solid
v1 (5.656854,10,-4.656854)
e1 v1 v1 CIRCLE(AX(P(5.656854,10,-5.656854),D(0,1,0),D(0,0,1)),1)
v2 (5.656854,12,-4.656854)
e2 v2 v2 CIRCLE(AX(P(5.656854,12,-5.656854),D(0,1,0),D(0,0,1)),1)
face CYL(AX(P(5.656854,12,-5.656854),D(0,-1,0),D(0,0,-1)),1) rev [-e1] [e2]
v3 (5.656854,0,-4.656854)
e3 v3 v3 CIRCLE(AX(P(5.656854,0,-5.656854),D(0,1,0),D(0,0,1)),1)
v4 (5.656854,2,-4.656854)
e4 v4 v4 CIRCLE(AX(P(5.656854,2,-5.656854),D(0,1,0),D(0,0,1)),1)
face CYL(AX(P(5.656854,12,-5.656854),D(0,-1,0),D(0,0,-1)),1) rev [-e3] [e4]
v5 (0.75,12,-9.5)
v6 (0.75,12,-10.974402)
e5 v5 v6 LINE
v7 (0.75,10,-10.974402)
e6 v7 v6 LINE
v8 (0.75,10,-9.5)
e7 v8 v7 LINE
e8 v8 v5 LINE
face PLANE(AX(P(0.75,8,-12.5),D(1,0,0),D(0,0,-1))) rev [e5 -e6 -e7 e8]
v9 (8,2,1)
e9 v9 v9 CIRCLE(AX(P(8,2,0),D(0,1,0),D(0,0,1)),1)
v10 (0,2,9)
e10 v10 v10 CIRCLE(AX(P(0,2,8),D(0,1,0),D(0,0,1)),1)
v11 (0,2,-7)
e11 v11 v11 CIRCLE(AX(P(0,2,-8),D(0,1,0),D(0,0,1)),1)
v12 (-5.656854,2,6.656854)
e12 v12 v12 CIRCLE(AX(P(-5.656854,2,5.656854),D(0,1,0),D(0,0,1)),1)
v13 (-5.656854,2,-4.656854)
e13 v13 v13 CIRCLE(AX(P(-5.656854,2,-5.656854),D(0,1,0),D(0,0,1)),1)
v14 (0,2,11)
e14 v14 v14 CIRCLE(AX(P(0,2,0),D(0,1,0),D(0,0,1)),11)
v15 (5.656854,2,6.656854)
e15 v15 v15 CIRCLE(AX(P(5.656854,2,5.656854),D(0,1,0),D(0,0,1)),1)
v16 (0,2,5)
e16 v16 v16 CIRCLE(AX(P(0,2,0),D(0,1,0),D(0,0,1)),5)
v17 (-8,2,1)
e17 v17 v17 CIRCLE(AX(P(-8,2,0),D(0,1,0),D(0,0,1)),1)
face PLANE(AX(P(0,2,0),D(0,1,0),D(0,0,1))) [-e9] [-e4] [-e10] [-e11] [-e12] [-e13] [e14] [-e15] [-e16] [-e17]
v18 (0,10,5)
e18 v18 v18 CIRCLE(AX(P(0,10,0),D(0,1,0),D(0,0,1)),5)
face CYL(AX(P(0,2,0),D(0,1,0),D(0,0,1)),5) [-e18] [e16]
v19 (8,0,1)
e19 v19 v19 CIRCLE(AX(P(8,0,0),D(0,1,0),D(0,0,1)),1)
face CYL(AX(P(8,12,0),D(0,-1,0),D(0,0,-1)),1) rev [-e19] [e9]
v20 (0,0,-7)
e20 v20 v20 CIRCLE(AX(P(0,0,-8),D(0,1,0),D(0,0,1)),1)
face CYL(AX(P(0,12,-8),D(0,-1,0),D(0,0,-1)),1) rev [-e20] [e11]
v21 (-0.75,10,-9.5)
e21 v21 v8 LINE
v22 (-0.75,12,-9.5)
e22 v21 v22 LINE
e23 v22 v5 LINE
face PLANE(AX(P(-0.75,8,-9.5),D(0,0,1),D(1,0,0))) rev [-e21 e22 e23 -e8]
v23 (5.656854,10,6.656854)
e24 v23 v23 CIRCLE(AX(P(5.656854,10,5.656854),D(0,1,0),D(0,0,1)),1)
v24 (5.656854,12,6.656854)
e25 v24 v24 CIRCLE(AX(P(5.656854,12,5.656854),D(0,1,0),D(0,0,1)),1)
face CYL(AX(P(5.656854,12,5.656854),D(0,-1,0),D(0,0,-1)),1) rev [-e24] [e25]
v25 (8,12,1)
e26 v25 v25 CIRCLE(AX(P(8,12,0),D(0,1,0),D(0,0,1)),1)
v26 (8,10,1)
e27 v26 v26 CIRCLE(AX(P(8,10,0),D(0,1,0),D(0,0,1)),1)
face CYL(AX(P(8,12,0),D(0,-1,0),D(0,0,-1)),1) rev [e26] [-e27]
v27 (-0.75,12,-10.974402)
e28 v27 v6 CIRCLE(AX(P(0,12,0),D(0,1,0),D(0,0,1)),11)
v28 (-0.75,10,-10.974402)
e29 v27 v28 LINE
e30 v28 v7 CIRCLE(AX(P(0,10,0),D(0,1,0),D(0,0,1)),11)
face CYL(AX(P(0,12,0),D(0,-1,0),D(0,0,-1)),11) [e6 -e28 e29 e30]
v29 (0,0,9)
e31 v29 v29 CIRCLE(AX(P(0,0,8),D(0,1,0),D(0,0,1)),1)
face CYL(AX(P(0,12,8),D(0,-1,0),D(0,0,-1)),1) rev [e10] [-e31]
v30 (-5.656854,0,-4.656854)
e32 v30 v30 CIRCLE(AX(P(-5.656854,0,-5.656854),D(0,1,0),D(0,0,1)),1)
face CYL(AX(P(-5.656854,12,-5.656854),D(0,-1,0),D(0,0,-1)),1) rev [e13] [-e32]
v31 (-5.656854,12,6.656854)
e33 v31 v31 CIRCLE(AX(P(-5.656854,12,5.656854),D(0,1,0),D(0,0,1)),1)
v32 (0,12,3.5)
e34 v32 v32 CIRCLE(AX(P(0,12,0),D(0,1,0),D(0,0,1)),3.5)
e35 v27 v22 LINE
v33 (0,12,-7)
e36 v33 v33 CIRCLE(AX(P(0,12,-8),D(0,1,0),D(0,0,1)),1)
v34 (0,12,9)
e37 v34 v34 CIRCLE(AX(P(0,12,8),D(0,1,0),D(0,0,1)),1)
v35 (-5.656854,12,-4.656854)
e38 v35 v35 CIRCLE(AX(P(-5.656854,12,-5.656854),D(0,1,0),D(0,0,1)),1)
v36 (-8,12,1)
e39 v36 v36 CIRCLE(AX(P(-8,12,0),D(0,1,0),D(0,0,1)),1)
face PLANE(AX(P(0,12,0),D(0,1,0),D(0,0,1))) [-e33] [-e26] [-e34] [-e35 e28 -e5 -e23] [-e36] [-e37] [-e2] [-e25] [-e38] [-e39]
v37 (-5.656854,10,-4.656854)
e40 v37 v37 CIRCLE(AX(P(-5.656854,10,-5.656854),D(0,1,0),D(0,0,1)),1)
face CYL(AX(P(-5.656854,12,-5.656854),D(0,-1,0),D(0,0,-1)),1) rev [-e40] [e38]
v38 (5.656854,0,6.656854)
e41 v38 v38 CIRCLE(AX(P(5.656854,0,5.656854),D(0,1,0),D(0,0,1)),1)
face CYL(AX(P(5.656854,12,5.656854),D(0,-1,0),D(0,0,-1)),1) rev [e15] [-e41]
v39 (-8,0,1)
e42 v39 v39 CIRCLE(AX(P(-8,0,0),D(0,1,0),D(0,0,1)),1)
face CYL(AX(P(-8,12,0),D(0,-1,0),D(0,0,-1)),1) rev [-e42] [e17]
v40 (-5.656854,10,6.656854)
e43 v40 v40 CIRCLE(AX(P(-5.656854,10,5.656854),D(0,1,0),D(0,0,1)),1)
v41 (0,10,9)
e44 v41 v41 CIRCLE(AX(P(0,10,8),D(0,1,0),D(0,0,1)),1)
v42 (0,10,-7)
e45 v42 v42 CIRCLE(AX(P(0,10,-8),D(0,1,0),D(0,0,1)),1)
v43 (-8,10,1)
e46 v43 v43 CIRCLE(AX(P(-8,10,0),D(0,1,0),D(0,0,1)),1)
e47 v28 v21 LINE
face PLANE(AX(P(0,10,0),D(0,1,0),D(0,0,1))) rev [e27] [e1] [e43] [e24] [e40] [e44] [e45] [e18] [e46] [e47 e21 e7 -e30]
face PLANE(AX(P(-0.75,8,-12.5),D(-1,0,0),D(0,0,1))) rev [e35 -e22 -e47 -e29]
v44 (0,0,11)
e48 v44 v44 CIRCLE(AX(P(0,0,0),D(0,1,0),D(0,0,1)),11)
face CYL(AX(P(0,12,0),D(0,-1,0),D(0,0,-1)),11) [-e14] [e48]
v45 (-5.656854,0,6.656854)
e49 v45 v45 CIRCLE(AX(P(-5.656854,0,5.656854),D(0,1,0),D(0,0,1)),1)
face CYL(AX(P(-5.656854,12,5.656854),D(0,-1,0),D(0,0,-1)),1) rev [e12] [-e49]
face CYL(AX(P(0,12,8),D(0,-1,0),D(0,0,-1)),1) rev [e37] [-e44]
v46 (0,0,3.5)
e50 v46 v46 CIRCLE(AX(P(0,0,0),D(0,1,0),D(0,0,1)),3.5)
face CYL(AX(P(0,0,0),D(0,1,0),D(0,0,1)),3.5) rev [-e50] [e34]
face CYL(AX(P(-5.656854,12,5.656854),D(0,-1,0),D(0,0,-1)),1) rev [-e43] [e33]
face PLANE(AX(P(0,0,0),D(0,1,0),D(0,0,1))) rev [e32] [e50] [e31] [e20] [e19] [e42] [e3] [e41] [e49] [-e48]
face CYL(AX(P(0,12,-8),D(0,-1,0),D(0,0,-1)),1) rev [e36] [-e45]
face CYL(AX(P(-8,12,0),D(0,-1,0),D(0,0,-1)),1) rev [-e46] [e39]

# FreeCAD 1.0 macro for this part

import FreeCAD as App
import Part
import Sketcher
from FreeCAD import Vector


def add_polygon(sketch, points):
    """Adds a closed chain of lines whose ends are joined by coincident constraints."""
    first, n = sketch.GeometryCount, len(points)
    for a, b in zip(points, points[1:] + points[:1]):
        sketch.addGeometry(Part.LineSegment(App.Vector(*a, 0), App.Vector(*b, 0)), False)
    for i in range(n):
        sketch.addConstraint(Sketcher.Constraint("Coincident", first + i, 2, first + (i + 1) % n, 1))

doc = App.newDocument("Part")
body = doc.addObject("PartDesign::Body", "Body")

sketch1 = body.newObject("Sketcher::SketchObject", "Sketch")
sketch1.AttachmentSupport = (doc.getObject("XZ_Plane"), [""])
sketch1.MapMode = "FlatFace"
sketch1.addGeometry([
    Part.Circle(Vector(0, 0, 0), Vector(0, 0, 1), 11),
    Part.Circle(Vector(-5.7, -5.7, 0), Vector(0, 0, 1), 1),
    Part.Circle(Vector(0, -8, 0), Vector(0, 0, 1), 1),
    Part.Circle(Vector(-8, 0, 0), Vector(0, 0, 1), 1),
    Part.Circle(Vector(-5.7, 5.7, 0), Vector(0, 0, 1), 1),
    Part.Circle(Vector(5.7, -5.7, 0), Vector(0, 0, 1), 1),
    Part.Circle(Vector(8, 0, 0), Vector(0, 0, 1), 1),
    Part.Circle(Vector(0, 8, 0), Vector(0, 0, 1), 1),
    Part.Circle(Vector(5.7, 5.7, 0), Vector(0, 0, 1), 1),
], False)
sketch1.addConstraint([
    Sketcher.Constraint("Coincident", 0, 3, -1, 1),
    Sketcher.Constraint("Equal", 1, 2),
    Sketcher.Constraint("Equal", 2, 3),
    Sketcher.Constraint("Equal", 3, 4),
    Sketcher.Constraint("Equal", 4, 5),
    Sketcher.Constraint("Equal", 5, 6),
    Sketcher.Constraint("Equal", 6, 7),
    Sketcher.Constraint("Equal", 7, 8),
    Sketcher.Constraint("Symmetric", 4, 3, 5, 3, -1, 1),
    Sketcher.Constraint("Symmetric", 3, 3, 6, 3, -1, 1),
    Sketcher.Constraint("Symmetric", 2, 3, 7, 3, -1, 1),
    Sketcher.Constraint("Symmetric", 1, 3, 8, 3, -1, 1),
    Sketcher.Constraint("Symmetric", 1, 3, 5, 3, -2),
    Sketcher.Constraint("PointOnObject", 2, 3, -2),
    Sketcher.Constraint("PointOnObject", 3, 3, -1),
    Sketcher.Constraint("Diameter", 0, 22.0),
    Sketcher.Constraint("Diameter", 1, 2.0),
    Sketcher.Constraint("DistanceY", 2, 3, -1, 1, 8.0),
    Sketcher.Constraint("DistanceX", 3, 3, -1, 1, 8.0),
    Sketcher.Constraint("DistanceY", 1, 3, 4, 3, 11.313708),
    Sketcher.Constraint("DistanceX", 1, 3, 5, 3, 11.313708),
])
pad1 = body.newObject("PartDesign::Pad", "Pad")
pad1.Profile = sketch1
pad1.Length = 12
pad1.Reversed = True

sketch2 = body.newObject("Sketcher::SketchObject", "Sketch001")
sketch2.AttachmentSupport = (doc.getObject("XZ_Plane"), [""])
sketch2.MapMode = "FlatFace"
sketch2.AttachmentOffset = App.Placement(Vector(0, 0, -12), App.Rotation())
sketch2.addGeometry(Part.Circle(Vector(0, 0, 0), Vector(0, 0, 1), 3.5), False)
sketch2.addConstraint([
    Sketcher.Constraint("Coincident", 0, 3, -1, 1),
    Sketcher.Constraint("Diameter", 0, 7.0),
])
pocket1 = body.newObject("PartDesign::Pocket", "Pocket")
pocket1.Profile = sketch2
pocket1.Type = "ThroughAll"
pocket1.Reversed = True

sketch3 = body.newObject("Sketcher::SketchObject", "Sketch002")
sketch3.AttachmentSupport = (doc.getObject("XZ_Plane"), [""])
sketch3.MapMode = "FlatFace"
sketch3.AttachmentOffset = App.Placement(Vector(0, 0, -2), App.Rotation())
sketch3.addGeometry([
    Part.Circle(Vector(0, 0, 0), Vector(0, 0, 1), 11),
    Part.Circle(Vector(0, 0, 0), Vector(0, 0, 1), 5),
], False)
sketch3.addConstraint([
    Sketcher.Constraint("Coincident", 0, 3, -1, 1),
    Sketcher.Constraint("Coincident", 1, 3, -1, 1),
    Sketcher.Constraint("Diameter", 0, 22.0),
    Sketcher.Constraint("Diameter", 1, 10.0),
])
pocket2 = body.newObject("PartDesign::Pocket", "Pocket001")
pocket2.Profile = sketch3
pocket2.Length = 8

sketch4 = body.newObject("Sketcher::SketchObject", "Sketch003")
sketch4.AttachmentSupport = (doc.getObject("XZ_Plane"), [""])
sketch4.MapMode = "FlatFace"
sketch4.AttachmentOffset = App.Placement(Vector(0, 0, -12), App.Rotation())
add_polygon(sketch4, [(-0.8, -12.5), (-0.8, -9.5), (0.8, -9.5), (0.8, -12.5)])
sketch4.addConstraint([
    Sketcher.Constraint("Vertical", 0),
    Sketcher.Constraint("Horizontal", 1),
    Sketcher.Constraint("Vertical", 2),
    Sketcher.Constraint("Horizontal", 3),
    Sketcher.Constraint("DistanceY", 0, 1, 0, 2, 3.0),
    Sketcher.Constraint("DistanceX", 1, 1, 1, 2, 1.5),
    Sketcher.Constraint("DistanceY", 0, 2, -1, 1, 9.5),
    Sketcher.Constraint("DistanceX", 0, 2, -1, 1, 0.75),
])
pocket3 = body.newObject("PartDesign::Pocket", "Pocket002")
pocket3.Profile = sketch4
pocket3.Length = 4
pocket3.Reversed = True

doc.recompute()
